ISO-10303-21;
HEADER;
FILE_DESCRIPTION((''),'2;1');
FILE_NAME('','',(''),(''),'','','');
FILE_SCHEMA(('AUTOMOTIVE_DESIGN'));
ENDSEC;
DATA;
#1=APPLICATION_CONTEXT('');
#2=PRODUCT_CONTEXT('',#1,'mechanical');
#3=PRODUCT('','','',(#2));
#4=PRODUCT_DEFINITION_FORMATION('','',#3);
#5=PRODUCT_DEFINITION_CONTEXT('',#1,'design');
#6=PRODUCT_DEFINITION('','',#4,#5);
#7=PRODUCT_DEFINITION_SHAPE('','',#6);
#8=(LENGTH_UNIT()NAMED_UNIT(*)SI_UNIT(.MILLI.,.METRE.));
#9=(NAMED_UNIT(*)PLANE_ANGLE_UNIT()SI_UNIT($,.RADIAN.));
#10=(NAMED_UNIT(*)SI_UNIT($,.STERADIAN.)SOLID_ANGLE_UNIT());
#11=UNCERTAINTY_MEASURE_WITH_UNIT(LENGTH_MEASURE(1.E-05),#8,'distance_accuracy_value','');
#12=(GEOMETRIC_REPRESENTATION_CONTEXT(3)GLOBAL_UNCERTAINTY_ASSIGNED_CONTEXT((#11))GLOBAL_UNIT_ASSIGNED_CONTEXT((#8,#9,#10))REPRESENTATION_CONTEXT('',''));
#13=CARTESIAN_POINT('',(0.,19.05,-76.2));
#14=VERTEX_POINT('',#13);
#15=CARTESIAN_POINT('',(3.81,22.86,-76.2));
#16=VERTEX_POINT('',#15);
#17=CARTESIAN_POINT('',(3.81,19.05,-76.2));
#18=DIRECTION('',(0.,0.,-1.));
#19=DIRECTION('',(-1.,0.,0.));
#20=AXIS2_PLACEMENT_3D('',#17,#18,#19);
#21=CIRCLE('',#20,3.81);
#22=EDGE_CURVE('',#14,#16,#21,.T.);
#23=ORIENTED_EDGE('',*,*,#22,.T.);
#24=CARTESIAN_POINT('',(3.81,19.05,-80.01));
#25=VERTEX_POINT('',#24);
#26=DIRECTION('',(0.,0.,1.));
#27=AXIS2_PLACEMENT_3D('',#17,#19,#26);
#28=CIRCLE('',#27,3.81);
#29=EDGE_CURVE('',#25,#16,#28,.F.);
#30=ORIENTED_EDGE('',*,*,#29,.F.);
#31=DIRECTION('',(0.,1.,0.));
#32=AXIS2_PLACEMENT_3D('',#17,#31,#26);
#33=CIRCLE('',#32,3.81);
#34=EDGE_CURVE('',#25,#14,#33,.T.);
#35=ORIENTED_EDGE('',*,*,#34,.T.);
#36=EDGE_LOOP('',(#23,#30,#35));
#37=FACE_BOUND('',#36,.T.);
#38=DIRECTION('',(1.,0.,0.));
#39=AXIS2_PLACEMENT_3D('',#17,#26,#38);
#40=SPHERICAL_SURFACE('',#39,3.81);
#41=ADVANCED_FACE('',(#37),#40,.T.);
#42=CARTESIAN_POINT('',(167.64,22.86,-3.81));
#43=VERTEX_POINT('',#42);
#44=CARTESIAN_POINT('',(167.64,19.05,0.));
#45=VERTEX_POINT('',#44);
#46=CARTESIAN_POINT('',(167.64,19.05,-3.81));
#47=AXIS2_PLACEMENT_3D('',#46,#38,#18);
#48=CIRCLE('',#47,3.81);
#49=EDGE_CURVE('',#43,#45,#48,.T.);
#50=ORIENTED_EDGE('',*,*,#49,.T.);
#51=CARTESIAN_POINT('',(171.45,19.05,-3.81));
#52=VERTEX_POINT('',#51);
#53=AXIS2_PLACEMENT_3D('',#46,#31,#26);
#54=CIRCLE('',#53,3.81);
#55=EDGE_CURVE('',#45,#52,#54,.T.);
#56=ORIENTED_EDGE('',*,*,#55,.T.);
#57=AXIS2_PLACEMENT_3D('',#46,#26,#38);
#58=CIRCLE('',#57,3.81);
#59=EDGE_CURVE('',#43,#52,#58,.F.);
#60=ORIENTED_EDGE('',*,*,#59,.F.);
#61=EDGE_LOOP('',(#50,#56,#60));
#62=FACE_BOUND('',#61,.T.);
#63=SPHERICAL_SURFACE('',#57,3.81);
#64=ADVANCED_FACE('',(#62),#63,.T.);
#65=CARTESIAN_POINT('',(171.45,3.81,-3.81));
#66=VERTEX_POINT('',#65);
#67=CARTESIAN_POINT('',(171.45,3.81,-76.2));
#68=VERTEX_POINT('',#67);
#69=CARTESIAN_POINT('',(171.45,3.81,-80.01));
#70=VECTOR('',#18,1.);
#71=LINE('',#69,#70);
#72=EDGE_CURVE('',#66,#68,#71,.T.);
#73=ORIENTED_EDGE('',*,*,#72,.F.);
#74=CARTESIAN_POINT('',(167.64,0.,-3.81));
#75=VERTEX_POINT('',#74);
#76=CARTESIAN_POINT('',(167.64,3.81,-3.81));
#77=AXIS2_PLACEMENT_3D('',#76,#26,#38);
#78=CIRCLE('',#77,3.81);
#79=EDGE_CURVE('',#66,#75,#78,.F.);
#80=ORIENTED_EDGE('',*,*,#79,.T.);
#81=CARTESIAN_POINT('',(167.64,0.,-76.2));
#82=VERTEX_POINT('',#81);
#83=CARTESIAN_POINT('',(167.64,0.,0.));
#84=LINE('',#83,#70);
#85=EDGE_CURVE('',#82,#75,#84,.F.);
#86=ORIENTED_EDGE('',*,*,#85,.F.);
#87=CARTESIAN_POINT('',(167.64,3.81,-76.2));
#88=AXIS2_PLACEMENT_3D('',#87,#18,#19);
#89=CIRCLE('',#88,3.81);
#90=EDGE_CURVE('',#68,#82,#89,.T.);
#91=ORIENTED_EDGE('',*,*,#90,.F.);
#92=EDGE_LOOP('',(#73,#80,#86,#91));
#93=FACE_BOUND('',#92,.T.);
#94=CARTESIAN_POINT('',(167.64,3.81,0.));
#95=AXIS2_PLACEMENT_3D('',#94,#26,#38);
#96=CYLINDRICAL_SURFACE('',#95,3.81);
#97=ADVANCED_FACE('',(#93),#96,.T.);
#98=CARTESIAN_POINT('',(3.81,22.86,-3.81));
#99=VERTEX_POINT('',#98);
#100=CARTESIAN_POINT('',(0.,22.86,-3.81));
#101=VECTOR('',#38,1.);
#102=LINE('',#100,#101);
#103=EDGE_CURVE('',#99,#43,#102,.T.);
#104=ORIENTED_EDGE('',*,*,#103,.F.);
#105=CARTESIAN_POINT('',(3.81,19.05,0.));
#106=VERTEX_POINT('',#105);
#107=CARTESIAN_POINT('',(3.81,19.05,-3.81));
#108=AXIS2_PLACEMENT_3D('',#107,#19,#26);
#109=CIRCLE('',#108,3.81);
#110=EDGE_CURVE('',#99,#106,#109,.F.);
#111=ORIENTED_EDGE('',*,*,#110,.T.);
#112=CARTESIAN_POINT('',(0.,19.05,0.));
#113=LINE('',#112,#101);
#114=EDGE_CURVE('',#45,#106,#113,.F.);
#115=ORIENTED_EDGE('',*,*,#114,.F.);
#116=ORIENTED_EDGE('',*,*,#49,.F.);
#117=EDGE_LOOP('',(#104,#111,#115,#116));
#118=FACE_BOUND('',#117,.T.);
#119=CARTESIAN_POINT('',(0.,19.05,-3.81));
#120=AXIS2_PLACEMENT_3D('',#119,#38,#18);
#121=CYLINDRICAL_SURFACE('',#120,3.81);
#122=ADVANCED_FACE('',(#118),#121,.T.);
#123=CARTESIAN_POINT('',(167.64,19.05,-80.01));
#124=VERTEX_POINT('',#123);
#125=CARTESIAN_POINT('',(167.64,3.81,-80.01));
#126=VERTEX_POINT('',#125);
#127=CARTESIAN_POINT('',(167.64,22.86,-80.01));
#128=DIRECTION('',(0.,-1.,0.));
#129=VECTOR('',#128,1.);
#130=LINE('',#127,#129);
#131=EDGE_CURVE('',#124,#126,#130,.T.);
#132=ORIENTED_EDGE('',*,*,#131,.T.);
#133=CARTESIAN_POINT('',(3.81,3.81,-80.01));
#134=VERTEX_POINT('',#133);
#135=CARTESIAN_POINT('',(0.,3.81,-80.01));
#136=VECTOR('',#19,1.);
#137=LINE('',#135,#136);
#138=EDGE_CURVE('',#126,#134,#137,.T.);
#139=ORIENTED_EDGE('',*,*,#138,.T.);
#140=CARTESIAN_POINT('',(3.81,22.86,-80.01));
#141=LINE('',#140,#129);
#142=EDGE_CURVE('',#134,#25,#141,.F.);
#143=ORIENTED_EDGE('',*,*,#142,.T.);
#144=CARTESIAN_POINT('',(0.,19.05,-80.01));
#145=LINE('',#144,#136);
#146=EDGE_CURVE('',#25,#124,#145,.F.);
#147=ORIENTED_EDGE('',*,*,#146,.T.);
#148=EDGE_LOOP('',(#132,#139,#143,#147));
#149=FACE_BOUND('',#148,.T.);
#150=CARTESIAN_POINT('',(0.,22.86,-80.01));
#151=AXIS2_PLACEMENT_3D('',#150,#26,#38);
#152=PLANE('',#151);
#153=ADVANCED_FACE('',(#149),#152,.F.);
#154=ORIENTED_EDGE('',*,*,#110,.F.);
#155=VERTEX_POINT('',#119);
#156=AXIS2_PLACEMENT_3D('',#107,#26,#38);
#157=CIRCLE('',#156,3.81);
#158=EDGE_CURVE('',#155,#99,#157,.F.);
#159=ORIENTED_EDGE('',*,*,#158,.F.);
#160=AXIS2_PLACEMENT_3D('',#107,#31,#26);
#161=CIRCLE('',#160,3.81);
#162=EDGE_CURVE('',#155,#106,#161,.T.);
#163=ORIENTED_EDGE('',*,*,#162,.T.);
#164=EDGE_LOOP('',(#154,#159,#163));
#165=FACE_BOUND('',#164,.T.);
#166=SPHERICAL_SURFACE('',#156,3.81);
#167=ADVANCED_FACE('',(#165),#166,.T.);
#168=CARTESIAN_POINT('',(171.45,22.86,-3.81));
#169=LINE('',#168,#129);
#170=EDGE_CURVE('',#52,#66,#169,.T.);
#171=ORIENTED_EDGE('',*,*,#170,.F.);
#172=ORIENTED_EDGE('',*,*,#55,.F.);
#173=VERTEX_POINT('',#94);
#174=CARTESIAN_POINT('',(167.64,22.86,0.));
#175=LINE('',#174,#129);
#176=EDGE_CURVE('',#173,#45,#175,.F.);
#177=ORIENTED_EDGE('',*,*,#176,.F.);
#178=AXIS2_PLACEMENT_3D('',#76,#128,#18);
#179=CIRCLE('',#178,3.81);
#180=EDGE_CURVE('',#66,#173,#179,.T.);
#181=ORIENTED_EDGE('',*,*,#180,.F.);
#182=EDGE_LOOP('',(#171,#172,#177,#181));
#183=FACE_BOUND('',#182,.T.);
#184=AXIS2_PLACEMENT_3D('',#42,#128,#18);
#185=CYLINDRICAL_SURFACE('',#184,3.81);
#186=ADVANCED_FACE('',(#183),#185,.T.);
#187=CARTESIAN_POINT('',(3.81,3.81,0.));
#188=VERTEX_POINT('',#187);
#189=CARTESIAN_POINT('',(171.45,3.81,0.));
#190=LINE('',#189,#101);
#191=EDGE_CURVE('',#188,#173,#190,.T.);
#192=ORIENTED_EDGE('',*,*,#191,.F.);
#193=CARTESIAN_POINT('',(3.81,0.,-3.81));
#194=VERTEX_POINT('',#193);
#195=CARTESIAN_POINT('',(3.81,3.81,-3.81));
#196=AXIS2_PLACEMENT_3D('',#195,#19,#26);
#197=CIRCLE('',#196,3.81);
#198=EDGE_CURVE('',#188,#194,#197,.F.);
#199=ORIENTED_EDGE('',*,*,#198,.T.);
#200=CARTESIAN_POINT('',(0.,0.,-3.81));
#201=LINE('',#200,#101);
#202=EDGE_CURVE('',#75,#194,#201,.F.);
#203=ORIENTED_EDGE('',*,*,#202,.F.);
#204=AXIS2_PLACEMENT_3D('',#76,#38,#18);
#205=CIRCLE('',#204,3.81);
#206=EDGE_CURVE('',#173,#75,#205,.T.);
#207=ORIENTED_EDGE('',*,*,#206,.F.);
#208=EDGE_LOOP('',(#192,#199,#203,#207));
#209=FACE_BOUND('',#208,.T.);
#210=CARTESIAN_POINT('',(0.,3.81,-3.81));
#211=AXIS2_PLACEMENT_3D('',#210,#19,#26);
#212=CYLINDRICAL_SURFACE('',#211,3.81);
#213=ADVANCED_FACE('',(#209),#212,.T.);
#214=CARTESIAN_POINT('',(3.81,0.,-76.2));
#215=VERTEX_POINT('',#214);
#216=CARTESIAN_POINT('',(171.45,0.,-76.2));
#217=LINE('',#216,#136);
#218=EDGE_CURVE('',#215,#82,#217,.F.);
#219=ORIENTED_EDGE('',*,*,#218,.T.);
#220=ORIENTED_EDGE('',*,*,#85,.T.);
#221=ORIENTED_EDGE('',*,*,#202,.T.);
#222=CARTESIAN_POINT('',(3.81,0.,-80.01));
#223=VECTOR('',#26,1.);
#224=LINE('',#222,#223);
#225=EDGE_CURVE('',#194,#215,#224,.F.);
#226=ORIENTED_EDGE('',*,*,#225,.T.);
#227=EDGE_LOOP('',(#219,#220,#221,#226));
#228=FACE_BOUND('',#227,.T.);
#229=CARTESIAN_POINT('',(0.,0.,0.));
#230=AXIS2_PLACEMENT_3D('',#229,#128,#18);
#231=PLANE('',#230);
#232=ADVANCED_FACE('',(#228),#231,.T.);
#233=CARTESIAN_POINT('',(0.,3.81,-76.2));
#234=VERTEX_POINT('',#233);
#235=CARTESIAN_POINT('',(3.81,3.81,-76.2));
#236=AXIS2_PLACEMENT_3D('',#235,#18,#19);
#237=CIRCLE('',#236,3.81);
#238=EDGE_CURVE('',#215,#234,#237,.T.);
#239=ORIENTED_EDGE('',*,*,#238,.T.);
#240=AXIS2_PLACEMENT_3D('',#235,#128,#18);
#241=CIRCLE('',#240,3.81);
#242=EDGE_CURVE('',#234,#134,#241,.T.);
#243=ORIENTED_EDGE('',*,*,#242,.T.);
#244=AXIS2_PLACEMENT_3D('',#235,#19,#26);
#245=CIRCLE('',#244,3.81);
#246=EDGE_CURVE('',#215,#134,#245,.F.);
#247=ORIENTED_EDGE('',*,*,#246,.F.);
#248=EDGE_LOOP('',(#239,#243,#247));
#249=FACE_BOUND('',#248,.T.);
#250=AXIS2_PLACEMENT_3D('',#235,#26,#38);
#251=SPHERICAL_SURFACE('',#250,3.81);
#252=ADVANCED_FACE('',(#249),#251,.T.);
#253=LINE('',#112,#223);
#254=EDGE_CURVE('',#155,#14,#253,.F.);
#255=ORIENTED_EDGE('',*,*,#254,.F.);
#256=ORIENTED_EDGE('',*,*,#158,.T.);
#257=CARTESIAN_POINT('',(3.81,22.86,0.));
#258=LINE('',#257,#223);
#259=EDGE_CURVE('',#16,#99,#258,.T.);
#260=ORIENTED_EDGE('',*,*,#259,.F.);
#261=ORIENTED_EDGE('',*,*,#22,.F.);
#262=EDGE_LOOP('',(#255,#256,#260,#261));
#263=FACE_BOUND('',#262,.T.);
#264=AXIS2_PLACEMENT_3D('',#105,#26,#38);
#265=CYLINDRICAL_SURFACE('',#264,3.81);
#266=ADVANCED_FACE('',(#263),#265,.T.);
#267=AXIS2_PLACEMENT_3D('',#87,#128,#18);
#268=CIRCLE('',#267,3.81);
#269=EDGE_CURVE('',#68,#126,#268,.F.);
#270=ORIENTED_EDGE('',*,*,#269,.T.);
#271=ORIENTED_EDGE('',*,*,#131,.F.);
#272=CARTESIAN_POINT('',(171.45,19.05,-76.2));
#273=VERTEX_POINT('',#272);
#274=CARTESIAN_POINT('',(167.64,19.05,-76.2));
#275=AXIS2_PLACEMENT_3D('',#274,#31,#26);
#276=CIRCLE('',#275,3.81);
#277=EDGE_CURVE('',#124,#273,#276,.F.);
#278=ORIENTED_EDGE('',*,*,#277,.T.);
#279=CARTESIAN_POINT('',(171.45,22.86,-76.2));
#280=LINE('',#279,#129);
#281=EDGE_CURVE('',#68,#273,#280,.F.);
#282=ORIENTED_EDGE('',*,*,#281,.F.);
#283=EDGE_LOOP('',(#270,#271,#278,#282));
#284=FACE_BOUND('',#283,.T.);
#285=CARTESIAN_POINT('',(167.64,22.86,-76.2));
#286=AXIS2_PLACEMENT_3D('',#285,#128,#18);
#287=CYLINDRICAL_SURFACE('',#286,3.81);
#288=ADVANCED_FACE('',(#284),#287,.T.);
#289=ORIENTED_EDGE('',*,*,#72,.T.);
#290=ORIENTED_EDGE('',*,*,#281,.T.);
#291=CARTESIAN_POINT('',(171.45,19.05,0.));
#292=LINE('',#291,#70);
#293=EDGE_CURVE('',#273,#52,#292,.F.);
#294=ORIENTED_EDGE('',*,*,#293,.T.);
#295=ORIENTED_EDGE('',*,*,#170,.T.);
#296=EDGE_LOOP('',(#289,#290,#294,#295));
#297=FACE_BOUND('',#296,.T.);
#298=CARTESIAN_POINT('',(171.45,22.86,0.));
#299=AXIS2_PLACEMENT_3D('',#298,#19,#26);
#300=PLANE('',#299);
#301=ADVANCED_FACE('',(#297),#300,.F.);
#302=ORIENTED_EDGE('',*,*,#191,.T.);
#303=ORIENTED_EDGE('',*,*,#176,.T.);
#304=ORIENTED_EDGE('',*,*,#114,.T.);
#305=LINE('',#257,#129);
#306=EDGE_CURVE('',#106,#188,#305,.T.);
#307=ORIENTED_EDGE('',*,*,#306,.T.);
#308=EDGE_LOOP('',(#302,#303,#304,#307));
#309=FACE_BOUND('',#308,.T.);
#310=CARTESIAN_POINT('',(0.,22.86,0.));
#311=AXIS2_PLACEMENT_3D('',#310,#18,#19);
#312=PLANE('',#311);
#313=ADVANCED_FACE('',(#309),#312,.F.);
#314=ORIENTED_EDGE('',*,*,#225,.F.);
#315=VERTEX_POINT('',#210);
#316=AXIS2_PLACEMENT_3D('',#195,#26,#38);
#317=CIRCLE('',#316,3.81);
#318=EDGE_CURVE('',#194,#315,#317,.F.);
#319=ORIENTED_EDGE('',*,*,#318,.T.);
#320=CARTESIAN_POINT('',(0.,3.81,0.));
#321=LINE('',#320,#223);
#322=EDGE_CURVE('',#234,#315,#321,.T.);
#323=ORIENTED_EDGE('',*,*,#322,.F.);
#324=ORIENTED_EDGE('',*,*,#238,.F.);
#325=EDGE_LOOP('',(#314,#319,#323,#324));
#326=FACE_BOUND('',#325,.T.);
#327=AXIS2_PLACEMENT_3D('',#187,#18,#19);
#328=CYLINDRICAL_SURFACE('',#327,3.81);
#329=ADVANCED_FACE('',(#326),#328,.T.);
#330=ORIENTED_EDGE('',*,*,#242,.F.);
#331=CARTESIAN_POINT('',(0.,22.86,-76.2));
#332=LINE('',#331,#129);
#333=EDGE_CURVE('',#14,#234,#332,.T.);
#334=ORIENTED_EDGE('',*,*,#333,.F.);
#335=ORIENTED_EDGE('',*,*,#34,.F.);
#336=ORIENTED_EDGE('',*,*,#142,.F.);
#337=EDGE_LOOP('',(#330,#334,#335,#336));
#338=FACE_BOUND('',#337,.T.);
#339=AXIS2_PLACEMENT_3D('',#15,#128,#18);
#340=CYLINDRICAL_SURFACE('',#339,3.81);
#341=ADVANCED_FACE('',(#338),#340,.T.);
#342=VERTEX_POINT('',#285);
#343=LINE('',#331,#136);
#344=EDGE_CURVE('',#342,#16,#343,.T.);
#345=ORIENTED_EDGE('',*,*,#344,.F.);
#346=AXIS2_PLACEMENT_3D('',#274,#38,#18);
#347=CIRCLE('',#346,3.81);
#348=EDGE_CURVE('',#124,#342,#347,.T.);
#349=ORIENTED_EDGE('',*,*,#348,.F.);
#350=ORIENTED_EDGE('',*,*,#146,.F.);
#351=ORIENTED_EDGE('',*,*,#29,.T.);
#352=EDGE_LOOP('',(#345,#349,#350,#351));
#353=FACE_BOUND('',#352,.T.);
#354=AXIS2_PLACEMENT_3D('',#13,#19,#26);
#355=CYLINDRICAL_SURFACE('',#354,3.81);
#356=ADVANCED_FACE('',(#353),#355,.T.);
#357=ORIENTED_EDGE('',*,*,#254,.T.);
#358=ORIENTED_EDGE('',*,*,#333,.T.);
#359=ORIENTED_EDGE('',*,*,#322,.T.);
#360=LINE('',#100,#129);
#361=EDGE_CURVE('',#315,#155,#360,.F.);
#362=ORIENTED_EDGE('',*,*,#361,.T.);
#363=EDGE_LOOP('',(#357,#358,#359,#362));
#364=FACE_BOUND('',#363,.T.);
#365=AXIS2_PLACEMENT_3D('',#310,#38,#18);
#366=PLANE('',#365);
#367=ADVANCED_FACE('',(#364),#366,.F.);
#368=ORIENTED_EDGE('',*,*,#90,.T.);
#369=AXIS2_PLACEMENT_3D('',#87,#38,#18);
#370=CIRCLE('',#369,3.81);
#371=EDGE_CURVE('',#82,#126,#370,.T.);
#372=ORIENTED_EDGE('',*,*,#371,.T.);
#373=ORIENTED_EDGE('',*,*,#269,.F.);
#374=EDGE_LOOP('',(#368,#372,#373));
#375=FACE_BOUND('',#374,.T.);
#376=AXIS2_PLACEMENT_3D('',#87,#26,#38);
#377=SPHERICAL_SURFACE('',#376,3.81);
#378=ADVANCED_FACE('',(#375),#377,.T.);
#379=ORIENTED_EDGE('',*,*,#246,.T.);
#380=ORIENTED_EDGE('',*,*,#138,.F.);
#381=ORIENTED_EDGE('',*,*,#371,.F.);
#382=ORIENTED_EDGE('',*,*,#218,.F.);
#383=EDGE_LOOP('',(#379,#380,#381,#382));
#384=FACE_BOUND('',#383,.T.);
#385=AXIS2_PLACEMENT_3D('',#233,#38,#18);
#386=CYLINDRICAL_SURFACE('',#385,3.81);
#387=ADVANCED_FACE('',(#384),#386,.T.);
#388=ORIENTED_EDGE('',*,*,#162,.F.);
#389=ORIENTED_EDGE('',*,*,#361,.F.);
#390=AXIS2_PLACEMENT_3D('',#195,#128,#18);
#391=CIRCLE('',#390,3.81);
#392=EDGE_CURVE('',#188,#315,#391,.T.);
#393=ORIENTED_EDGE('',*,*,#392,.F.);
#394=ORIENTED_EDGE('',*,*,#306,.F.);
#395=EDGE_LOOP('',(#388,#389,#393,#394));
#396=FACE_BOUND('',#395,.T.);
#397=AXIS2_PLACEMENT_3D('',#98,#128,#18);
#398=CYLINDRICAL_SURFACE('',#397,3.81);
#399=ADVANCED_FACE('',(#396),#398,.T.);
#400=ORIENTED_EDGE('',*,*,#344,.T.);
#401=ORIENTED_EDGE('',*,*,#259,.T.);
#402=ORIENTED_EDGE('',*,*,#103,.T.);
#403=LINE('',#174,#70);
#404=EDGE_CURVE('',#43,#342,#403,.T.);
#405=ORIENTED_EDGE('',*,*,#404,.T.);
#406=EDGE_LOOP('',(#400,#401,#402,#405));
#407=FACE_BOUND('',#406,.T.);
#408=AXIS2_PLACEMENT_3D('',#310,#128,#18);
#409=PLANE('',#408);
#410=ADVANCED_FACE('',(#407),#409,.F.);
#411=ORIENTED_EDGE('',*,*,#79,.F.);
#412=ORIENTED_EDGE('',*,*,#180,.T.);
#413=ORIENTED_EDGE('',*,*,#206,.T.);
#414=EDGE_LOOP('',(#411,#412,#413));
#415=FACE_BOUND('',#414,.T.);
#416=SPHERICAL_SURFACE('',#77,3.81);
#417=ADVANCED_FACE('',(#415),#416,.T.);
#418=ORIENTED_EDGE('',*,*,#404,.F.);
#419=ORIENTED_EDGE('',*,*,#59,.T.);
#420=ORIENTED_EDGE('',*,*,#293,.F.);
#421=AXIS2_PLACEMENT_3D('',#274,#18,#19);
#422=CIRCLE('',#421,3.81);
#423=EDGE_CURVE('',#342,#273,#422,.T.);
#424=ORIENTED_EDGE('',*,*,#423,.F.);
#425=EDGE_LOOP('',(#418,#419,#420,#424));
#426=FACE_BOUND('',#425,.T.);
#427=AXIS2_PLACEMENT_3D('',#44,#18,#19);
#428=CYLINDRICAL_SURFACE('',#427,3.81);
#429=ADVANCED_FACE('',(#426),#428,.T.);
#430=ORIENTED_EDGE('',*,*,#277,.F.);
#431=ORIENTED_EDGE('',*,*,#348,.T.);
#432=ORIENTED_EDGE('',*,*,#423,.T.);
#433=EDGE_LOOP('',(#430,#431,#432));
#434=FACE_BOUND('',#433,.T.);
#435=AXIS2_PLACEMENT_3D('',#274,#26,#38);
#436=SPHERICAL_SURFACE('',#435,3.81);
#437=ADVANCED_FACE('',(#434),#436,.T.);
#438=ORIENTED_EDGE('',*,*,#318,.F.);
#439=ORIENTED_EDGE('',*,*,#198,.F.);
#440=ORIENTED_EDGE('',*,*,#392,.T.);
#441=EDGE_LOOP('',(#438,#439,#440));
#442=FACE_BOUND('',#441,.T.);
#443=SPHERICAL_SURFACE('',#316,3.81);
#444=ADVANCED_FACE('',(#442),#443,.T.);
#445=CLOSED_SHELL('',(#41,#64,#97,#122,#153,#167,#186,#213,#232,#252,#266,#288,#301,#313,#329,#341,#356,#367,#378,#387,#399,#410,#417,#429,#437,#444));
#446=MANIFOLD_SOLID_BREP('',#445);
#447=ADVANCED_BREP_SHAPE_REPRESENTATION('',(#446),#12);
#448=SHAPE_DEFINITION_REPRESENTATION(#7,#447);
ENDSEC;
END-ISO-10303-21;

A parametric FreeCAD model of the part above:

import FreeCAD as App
import Part
import Sketcher

V = App.Vector
Q = App.Units.Quantity


def add_polygon(sketch, points):
    """Adds a closed chain of lines whose ends are joined by coincident constraints."""
    first, n = sketch.GeometryCount, len(points)
    for a, b in zip(points, points[1:] + points[:1]):
        sketch.addGeometry(Part.LineSegment(App.Vector(*a, 0), App.Vector(*b, 0)), False)
    for i in range(n):
        sketch.addConstraint(Sketcher.Constraint("Coincident", first + i, 2, first + (i + 1) % n, 1))

doc = App.newDocument("Part")
body = doc.addObject("PartDesign::Body", "Body")

# Sketch on XZ plane
sketch1 = body.newObject("Sketcher::SketchObject", "Sketch")
sketch1.AttachmentSupport = (doc.getObject("XZ_Plane"), [""])
sketch1.MapMode = "FlatFace"
add_polygon(sketch1, [(0, -80.01), (0, 0), (171.45, 0), (171.45, -80.01)])  # lines 0-3
sketch1.addConstraint([
    Sketcher.Constraint("Vertical", 0),
    Sketcher.Constraint("Horizontal", 1),
    Sketcher.Constraint("Vertical", 2),
    Sketcher.Constraint("Horizontal", 3),
    Sketcher.Constraint("Coincident", 0, 2, -1, 1),
    Sketcher.Constraint("DistanceX", 1, 1, 1, 2, Q("6.75 in")),
    Sketcher.Constraint("DistanceY", 0, 1, 0, 2, Q("3.15 in")),
])
pad1 = body.newObject("PartDesign::Pad", "Pad")
pad1.Profile = sketch1
pad1.Length = Q("0.9 in")
pad1.Reversed = True
doc.recompute()

fillet = body.newObject("PartDesign::Fillet", "Fillet")
fillet.Base = (pad1, ["Edge1"])
fillet.UseAllEdges = True
fillet.Radius = Q("0.15 in")

doc.recompute()
